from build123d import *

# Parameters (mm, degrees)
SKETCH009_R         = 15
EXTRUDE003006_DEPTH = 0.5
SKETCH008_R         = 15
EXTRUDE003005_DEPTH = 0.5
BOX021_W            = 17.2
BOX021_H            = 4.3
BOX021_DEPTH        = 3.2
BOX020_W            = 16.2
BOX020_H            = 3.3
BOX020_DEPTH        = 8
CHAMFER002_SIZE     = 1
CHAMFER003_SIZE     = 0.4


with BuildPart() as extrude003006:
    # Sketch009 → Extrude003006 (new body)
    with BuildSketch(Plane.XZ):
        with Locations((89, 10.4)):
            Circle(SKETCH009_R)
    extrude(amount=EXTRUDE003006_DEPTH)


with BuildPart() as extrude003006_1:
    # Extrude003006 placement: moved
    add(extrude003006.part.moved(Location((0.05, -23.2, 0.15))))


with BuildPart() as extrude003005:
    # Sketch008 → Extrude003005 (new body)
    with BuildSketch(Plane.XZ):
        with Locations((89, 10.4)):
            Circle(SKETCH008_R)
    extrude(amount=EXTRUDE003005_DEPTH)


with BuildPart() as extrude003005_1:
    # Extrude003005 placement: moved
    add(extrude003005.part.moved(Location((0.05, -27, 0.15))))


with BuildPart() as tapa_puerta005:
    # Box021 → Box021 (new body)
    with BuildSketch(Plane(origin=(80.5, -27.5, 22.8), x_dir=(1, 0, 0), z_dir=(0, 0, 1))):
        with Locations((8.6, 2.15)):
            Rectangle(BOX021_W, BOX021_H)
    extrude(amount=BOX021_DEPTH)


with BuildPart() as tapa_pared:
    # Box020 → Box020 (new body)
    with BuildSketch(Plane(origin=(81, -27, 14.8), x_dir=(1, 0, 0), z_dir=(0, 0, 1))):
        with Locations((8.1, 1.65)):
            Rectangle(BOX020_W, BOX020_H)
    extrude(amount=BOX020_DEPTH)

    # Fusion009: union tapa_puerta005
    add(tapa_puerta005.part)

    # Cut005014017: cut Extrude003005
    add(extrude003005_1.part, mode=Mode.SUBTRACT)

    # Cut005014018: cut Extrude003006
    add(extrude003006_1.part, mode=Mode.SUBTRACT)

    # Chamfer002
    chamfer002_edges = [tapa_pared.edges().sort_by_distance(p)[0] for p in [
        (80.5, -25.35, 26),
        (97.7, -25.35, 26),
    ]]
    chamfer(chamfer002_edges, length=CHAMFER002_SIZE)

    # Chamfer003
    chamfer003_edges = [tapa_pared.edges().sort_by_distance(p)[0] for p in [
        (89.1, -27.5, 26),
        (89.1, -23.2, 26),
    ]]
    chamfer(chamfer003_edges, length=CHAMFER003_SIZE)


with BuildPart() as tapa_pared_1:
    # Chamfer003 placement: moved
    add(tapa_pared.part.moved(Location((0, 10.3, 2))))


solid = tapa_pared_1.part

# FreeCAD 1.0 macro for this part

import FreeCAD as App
import Part
import Sketcher


def edges_at(feature, points):
    """Names of the edges that pass closest to the given points."""
    edges = feature.Shape.Edges
    near = lambda p: min(range(len(edges)), key=lambda i: edges[i].distToShape(Part.Vertex(*p))[0])
    return sorted({f"Edge{near(p) + 1}" for p in points})

doc = App.newDocument("Part")
params = doc.addObject("Spreadsheet::Sheet", "Params")
for row, (alias, value) in enumerate([
    ("sketch1_diameter", "30 mm"),
    ("pad1_length", "0.5 mm"),
    ("sketch2_diameter", "30 mm"),
    ("pad2_length", "0.5 mm"),
    ("sketch3_width", "17.2 mm"),
    ("sketch3_height", "4.3 mm"),
    ("pad3_length", "3.2 mm"),
    ("sketch4_width", "16.2 mm"),
    ("sketch4_height", "3.3 mm"),
    ("pad4_length", "8 mm"),
    ("chamfer_size", "1 mm"),
    ("chamfer2_size", "0.4 mm"),
], start=1):
    params.set(f"A{row}", alias)
    params.set(f"B{row}", "=" + value)
    params.setAlias(f"B{row}", alias)

body = doc.addObject("PartDesign::Body", "Body")

# Sketch on XZ plane
sketch1 = body.newObject("Sketcher::SketchObject", "Sketch")
sketch1.AttachmentSupport = (doc.getObject("XZ_Plane"), [""])
sketch1.MapMode = "FlatFace"
sketch1.addGeometry(Part.Circle(App.Vector(89, 10, 0), App.Vector(0, 0, 1), 15), False)
sketch1.addConstraint([
    Sketcher.Constraint("Diameter", 0, 30.0),
    Sketcher.Constraint("DistanceX", -1, 1, 0, 3, 89.0),
    Sketcher.Constraint("DistanceY", -1, 1, 0, 3, 10.4),
])
sketch1.setExpression("Constraints[0]", "Params.sketch1_diameter")
pad1 = body.newObject("PartDesign::Pad", "Pad")
pad1.Profile = sketch1
pad1.setExpression("Length", "Params.pad1_length")
body2 = doc.addObject("PartDesign::Body", "Body001")
doc.recompute()

body.Placement = App.Placement(App.Vector(0.05, -23.2, 0.15), App.Rotation(App.Vector(0, 0, 1), 0))
boolean = body2.newObject("PartDesign::Boolean", "Boolean")
boolean.Type = "Fuse"
boolean.addObjects([body])
body3 = doc.addObject("PartDesign::Body", "Body002")

# Sketch on XZ plane
sketch2 = body3.newObject("Sketcher::SketchObject", "Sketch001")
sketch2.AttachmentSupport = (doc.getObject("XZ_Plane002"), [""])
sketch2.MapMode = "FlatFace"
sketch2.addGeometry(Part.Circle(App.Vector(89, 10, 0), App.Vector(0, 0, 1), 15), False)
sketch2.addConstraint([
    Sketcher.Constraint("Diameter", 0, 30.0),
    Sketcher.Constraint("DistanceX", -1, 1, 0, 3, 89.0),
    Sketcher.Constraint("DistanceY", -1, 1, 0, 3, 10.4),
])
sketch2.setExpression("Constraints[0]", "Params.sketch2_diameter")
pad2 = body3.newObject("PartDesign::Pad", "Pad001")
pad2.Profile = sketch2
pad2.setExpression("Length", "Params.pad2_length")
body4 = doc.addObject("PartDesign::Body", "Body003")
doc.recompute()

body3.Placement = App.Placement(App.Vector(0.05, -27, 0.15), App.Rotation(App.Vector(0, 0, 1), 0))
boolean2 = body4.newObject("PartDesign::Boolean", "Boolean001")
boolean2.Type = "Fuse"
boolean2.addObjects([body3])
body5 = doc.addObject("PartDesign::Body", "Body004")

# Sketch on XY plane
sketch3 = body5.newObject("Sketcher::SketchObject", "Sketch002")
sketch3.AttachmentSupport = (doc.getObject("XY_Plane004"), [""])
sketch3.MapMode = "FlatFace"
sketch3.AttachmentOffset = App.Placement(App.Vector(0, 0, 22.8), App.Rotation())
sketch3.addGeometry([
    Part.LineSegment(App.Vector(80.5, -23.2, 0), App.Vector(80.5, -27.5, 0)),
    Part.LineSegment(App.Vector(80.5, -27.5, 0), App.Vector(97.7, -27.5, 0)),
    Part.LineSegment(App.Vector(97.7, -27.5, 0), App.Vector(97.7, -23.2, 0)),
    Part.LineSegment(App.Vector(97.7, -23.2, 0), App.Vector(80.5, -23.2, 0)),
], False)
sketch3.addConstraint([
    Sketcher.Constraint("Coincident", 0, 2, 1, 1),
    Sketcher.Constraint("Coincident", 1, 2, 2, 1),
    Sketcher.Constraint("Coincident", 2, 2, 3, 1),
    Sketcher.Constraint("Coincident", 3, 2, 0, 1),
    Sketcher.Constraint("Vertical", 0),
    Sketcher.Constraint("Horizontal", 1),
    Sketcher.Constraint("Vertical", 2),
    Sketcher.Constraint("Horizontal", 3),
    Sketcher.Constraint("DistanceX", 1, 1, 1, 2, 17.2),
    Sketcher.Constraint("DistanceY", 0, 2, 0, 1, 4.3),
    Sketcher.Constraint("DistanceX", -1, 1, 0, 2, 80.5),
    Sketcher.Constraint("DistanceY", 0, 2, -1, 1, 27.5),
])
sketch3.setExpression("Constraints[8]", "Params.sketch3_width")
sketch3.setExpression("Constraints[9]", "Params.sketch3_height")
pad3 = body5.newObject("PartDesign::Pad", "Pad002")
pad3.Profile = sketch3
pad3.setExpression("Length", "Params.pad3_length")
body6 = doc.addObject("PartDesign::Body", "Body005")

# Sketch on XY plane
sketch4 = body6.newObject("Sketcher::SketchObject", "Sketch003")
sketch4.AttachmentSupport = (doc.getObject("XY_Plane005"), [""])
sketch4.MapMode = "FlatFace"
sketch4.AttachmentOffset = App.Placement(App.Vector(0, 0, 14.8), App.Rotation())
sketch4.addGeometry([
    Part.LineSegment(App.Vector(81, -23.7, 0), App.Vector(81, -27, 0)),
    Part.LineSegment(App.Vector(81, -27, 0), App.Vector(97.2, -27, 0)),
    Part.LineSegment(App.Vector(97.2, -27, 0), App.Vector(97.2, -23.7, 0)),
    Part.LineSegment(App.Vector(97.2, -23.7, 0), App.Vector(81, -23.7, 0)),
], False)
sketch4.addConstraint([
    Sketcher.Constraint("Coincident", 0, 2, 1, 1),
    Sketcher.Constraint("Coincident", 1, 2, 2, 1),
    Sketcher.Constraint("Coincident", 2, 2, 3, 1),
    Sketcher.Constraint("Coincident", 3, 2, 0, 1),
    Sketcher.Constraint("Vertical", 0),
    Sketcher.Constraint("Horizontal", 1),
    Sketcher.Constraint("Vertical", 2),
    Sketcher.Constraint("Horizontal", 3),
    Sketcher.Constraint("DistanceX", 1, 1, 1, 2, 16.2),
    Sketcher.Constraint("DistanceY", 0, 2, 0, 1, 3.3),
    Sketcher.Constraint("DistanceX", -1, 1, 0, 2, 81.0),
    Sketcher.Constraint("DistanceY", 0, 2, -1, 1, 27.0),
])
sketch4.setExpression("Constraints[8]", "Params.sketch4_width")
sketch4.setExpression("Constraints[9]", "Params.sketch4_height")
pad4 = body6.newObject("PartDesign::Pad", "Pad003")
pad4.Profile = sketch4
pad4.setExpression("Length", "Params.pad4_length")
doc.recompute()

boolean3 = body6.newObject("PartDesign::Boolean", "Boolean002")
boolean3.Type = "Fuse"
boolean3.addObjects([body5])
doc.recompute()

boolean4 = body6.newObject("PartDesign::Boolean", "Boolean003")
boolean4.Type = "Cut"
boolean4.addObjects([body4])
doc.recompute()

boolean5 = body6.newObject("PartDesign::Boolean", "Boolean004")
boolean5.Type = "Cut"
boolean5.addObjects([body2])
doc.recompute()

chamfer = body6.newObject("PartDesign::Chamfer", "Chamfer")
chamfer.Base = (boolean5, edges_at(boolean5, [(80.5, -25.35, 26), (97.7, -25.35, 26)]))
chamfer.setExpression("Size", "Params.chamfer_size")
doc.recompute()

chamfer2 = body6.newObject("PartDesign::Chamfer", "Chamfer001")
chamfer2.Base = (chamfer, edges_at(chamfer, [(89.1, -27.5, 26), (89.1, -23.2, 26)]))
chamfer2.setExpression("Size", "Params.chamfer2_size")
body7 = doc.addObject("PartDesign::Body", "Body006")
doc.recompute()

body6.Placement = App.Placement(App.Vector(0, 10.3, 2), App.Rotation(App.Vector(0, 0, 1), 0))
boolean6 = body7.newObject("PartDesign::Boolean", "Boolean005")
boolean6.Type = "Fuse"
boolean6.addObjects([body6])

doc.recompute()
